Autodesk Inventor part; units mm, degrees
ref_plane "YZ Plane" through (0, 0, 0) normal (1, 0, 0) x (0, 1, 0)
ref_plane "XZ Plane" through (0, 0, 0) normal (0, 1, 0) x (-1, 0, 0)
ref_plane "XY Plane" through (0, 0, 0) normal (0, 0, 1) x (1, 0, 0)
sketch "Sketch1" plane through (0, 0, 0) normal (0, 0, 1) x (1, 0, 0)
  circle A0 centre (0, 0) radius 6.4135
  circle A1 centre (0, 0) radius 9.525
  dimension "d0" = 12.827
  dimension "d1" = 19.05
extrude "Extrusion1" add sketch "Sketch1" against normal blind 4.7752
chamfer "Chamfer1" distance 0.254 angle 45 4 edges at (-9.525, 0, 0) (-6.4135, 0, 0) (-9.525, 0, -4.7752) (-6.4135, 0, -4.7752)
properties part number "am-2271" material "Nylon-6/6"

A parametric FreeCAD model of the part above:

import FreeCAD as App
import Part
import Sketcher

V = App.Vector
Q = App.Units.Quantity


def edges_at(feature, points):
    """Names of the edges that pass closest to the given points."""
    edges = feature.Shape.Edges
    near = lambda p: min(range(len(edges)), key=lambda i: edges[i].distToShape(Part.Vertex(*p))[0])
    return sorted({f"Edge{near(p) + 1}" for p in points})

doc = App.newDocument("Part")
params = doc.addObject("Spreadsheet::Sheet", "Params")
for row, (alias, value) in enumerate([
    ("sketch1_diameter", "0.75 in"),
    ("sketch1_diameter2", "0.505 in"),
    ("pad1_length", "0.188 in"),
    ("chamfer_size", "0.01 in"),
], start=1):
    params.set(f"A{row}", alias)
    params.set(f"B{row}", "=" + value)
    params.setAlias(f"B{row}", alias)

body = doc.addObject("PartDesign::Body", "Body")

sketch1 = doc.addObject("Sketcher::SketchObject", "Sketch")
body.addObject(sketch1)
sketch1.AttachmentSupport = (doc.XY_Plane, [""])
sketch1.MapMode = "FlatFace"
sketch1.addGeometry([
    Part.Circle(V(0, 0, 0), V(0, 0, 1), 9.525),
    Part.Circle(V(0, 0, 0), V(0, 0, 1), 6.4135),
], False)
sketch1.addConstraint([
    Sketcher.Constraint("Coincident", 0, 3, -1, 1),
    Sketcher.Constraint("Coincident", 1, 3, -1, 1),
    Sketcher.Constraint("Diameter", 0, Q("0.75 in")),
    Sketcher.Constraint("Diameter", 1, Q("0.505 in")),
])
sketch1.setExpression("Constraints[2]", "Params.sketch1_diameter")
sketch1.setExpression("Constraints[3]", "Params.sketch1_diameter2")
pad1 = doc.addObject("PartDesign::Pad", "Pad")
body.addObject(pad1)
pad1.Profile = sketch1
pad1.setExpression("Length", "Params.pad1_length")
pad1.Reversed = True
doc.recompute()

chamfer = doc.addObject("PartDesign::Chamfer", "Chamfer")
body.addObject(chamfer)
chamfer.Base = (pad1, edges_at(pad1, [
    (-9.525, 0, 0),
    (-6.413, 0, 0),
    (-9.525, 0, -4.775),
    (-6.413, 0, -4.775),
]))
chamfer.setExpression("Size", "Params.chamfer_size")

doc.recompute()
